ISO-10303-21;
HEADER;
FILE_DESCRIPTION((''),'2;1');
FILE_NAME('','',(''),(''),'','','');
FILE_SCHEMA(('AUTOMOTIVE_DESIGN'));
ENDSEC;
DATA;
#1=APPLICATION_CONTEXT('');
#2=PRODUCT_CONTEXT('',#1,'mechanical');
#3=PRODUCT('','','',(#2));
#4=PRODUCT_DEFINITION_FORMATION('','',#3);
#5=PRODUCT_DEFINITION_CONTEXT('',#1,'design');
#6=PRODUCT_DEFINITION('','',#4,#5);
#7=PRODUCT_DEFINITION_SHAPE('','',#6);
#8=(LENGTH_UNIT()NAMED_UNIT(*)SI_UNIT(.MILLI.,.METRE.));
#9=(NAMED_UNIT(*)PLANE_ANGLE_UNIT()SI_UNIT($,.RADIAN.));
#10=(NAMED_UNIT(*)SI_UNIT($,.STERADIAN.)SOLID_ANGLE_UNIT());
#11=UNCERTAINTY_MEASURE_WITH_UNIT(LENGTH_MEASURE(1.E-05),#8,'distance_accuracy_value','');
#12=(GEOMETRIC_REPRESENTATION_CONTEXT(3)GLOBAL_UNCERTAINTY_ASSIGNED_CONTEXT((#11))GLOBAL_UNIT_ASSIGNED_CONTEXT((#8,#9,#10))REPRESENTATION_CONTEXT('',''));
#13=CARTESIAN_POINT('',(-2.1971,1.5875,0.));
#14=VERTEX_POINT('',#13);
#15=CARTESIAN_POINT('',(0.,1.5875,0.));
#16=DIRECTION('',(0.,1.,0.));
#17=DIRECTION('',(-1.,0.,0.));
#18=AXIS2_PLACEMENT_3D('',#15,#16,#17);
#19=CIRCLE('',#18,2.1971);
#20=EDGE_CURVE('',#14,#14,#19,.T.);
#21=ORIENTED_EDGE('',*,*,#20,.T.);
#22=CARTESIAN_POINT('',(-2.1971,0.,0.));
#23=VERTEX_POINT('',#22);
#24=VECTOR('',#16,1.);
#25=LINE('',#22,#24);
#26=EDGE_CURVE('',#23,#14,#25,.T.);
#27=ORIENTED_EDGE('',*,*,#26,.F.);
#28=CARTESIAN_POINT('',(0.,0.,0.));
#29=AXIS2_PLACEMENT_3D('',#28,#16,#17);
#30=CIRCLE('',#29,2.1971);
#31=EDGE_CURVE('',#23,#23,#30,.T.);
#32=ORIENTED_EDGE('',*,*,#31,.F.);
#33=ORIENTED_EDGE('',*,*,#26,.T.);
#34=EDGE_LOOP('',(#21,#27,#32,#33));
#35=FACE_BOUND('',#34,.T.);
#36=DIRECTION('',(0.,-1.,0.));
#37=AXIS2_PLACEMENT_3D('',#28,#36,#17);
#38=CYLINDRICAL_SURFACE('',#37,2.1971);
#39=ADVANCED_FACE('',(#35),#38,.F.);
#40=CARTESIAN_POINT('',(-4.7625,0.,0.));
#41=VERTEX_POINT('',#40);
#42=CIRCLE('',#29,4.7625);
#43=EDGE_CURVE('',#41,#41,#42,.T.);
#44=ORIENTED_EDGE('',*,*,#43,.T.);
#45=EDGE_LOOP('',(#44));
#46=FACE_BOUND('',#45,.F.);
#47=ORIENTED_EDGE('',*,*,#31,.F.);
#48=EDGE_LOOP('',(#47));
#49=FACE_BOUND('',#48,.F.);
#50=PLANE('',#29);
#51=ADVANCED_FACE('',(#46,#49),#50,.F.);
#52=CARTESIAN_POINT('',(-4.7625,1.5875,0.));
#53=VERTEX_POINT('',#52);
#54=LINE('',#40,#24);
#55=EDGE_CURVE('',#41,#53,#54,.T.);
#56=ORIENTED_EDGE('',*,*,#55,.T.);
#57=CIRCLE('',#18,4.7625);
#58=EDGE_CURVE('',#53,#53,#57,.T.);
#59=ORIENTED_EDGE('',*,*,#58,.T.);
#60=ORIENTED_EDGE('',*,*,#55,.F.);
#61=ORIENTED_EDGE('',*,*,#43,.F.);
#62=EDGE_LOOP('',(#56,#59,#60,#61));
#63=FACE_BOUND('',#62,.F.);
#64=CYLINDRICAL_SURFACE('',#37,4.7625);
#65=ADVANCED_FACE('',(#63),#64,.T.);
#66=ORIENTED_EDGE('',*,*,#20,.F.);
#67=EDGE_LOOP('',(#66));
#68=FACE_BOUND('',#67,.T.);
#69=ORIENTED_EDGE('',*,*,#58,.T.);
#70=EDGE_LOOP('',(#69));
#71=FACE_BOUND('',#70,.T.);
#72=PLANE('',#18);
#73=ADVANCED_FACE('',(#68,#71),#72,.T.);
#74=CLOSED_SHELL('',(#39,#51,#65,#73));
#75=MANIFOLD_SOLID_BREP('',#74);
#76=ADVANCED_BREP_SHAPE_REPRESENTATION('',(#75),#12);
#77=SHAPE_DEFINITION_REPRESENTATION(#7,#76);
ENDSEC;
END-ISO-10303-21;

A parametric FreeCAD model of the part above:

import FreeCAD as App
import Part
import Sketcher
from FreeCAD import Vector
Q = App.Units.Quantity

doc = App.newDocument("Part")
body = doc.addObject("PartDesign::Body", "Body")

# Sketch on XZ plane
sketch1 = body.newObject("Sketcher::SketchObject", "Sketch")
sketch1.AttachmentSupport = (doc.getObject("XZ_Plane"), [""])
sketch1.MapMode = "FlatFace"
sketch1.addGeometry([
    Part.Circle(Vector(0, 0, 0), Vector(0, 0, 1), 4.8),
    Part.Circle(Vector(0, 0, 0), Vector(0, 0, 1), 2.2),
], False)
sketch1.addConstraint([
    Sketcher.Constraint("Coincident", 0, 3, -1, 1),
    Sketcher.Constraint("Coincident", 1, 3, -1, 1),
    Sketcher.Constraint("Diameter", 0, Q("0.375 in")),
    Sketcher.Constraint("Diameter", 1, Q("0.173 in")),
])
pad1 = body.newObject("PartDesign::Pad", "Pad")
pad1.Profile = sketch1
pad1.Length = Q("0.0625 in")
pad1.Reversed = True

doc.recompute()
